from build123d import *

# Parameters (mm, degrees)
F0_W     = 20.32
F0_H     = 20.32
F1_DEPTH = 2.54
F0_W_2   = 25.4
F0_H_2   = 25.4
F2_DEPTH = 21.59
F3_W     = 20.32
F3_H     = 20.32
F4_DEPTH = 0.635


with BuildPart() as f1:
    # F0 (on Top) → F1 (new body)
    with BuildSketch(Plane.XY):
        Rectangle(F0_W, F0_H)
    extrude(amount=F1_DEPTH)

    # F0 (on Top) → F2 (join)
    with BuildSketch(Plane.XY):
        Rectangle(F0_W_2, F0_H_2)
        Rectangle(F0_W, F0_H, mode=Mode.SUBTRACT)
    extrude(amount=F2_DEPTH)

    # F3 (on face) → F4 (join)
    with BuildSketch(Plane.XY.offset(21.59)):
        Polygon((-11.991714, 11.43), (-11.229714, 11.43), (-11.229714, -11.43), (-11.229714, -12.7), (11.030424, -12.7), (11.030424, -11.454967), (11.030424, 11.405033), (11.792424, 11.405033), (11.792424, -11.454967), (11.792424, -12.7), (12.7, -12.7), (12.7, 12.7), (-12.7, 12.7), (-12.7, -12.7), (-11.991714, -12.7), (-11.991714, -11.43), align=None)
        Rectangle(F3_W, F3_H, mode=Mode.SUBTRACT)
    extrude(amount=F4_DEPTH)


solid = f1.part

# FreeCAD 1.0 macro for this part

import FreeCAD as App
import Part
import Sketcher
from FreeCAD import Vector
Q = App.Units.Quantity

doc = App.newDocument("Part")
body = doc.addObject("PartDesign::Body", "Body")

sketch1 = body.newObject("Sketcher::SketchObject", "Sketch")
sketch1.AttachmentSupport = (doc.getObject("XY_Plane"), [""])
sketch1.MapMode = "FlatFace"
sketch1.addGeometry(Part.LineSegment(Vector(-10, 10, 0), Vector(-10, -10, 0)), False)
sketch1.addGeometry(Part.LineSegment(Vector(-10, -10, 0), Vector(10, -10, 0)), False)
sketch1.addGeometry(Part.LineSegment(Vector(10, -10, 0), Vector(10, 10, 0)), False)
sketch1.addGeometry(Part.LineSegment(Vector(10, 10, 0), Vector(-10, 10, 0)), False)
sketch1.addConstraint(Sketcher.Constraint("Coincident", 0, 2, 1, 1))
sketch1.addConstraint(Sketcher.Constraint("Coincident", 1, 2, 2, 1))
sketch1.addConstraint(Sketcher.Constraint("Coincident", 2, 2, 3, 1))
sketch1.addConstraint(Sketcher.Constraint("Coincident", 3, 2, 0, 1))
sketch1.addConstraint(Sketcher.Constraint("Vertical", 0))
sketch1.addConstraint(Sketcher.Constraint("Horizontal", 1))
sketch1.addConstraint(Sketcher.Constraint("Vertical", 2))
sketch1.addConstraint(Sketcher.Constraint("Horizontal", 3))
sketch1.addConstraint(Sketcher.Constraint("Symmetric", 0, 2, 2, 2, -1, 1))
sketch1.addConstraint(Sketcher.Constraint("Equal", 3, 0))
sketch1.addConstraint(Sketcher.Constraint("DistanceX", 1, 1, 1, 2, Q("0.8 in")))
pad1 = body.newObject("PartDesign::Pad", "Pad")
pad1.Profile = sketch1
pad1.Length = Q("0.1 in")

sketch2 = body.newObject("Sketcher::SketchObject", "Sketch001")
sketch2.AttachmentSupport = (doc.getObject("XY_Plane"), [""])
sketch2.MapMode = "FlatFace"
sketch2.addGeometry(Part.LineSegment(Vector(-13, 13, 0), Vector(-13, -13, 0)), False)
sketch2.addGeometry(Part.LineSegment(Vector(-13, -13, 0), Vector(13, -13, 0)), False)
sketch2.addGeometry(Part.LineSegment(Vector(13, -13, 0), Vector(13, 13, 0)), False)
sketch2.addGeometry(Part.LineSegment(Vector(13, 13, 0), Vector(-13, 13, 0)), False)
sketch2.addGeometry(Part.LineSegment(Vector(10, -10, 0), Vector(-10, -10, 0)), False)
sketch2.addGeometry(Part.LineSegment(Vector(-10, -10, 0), Vector(-10, 10, 0)), False)
sketch2.addGeometry(Part.LineSegment(Vector(-10, 10, 0), Vector(10, 10, 0)), False)
sketch2.addGeometry(Part.LineSegment(Vector(10, 10, 0), Vector(10, -10, 0)), False)
sketch2.addConstraint(Sketcher.Constraint("Coincident", 0, 2, 1, 1))
sketch2.addConstraint(Sketcher.Constraint("Coincident", 1, 2, 2, 1))
sketch2.addConstraint(Sketcher.Constraint("Coincident", 2, 2, 3, 1))
sketch2.addConstraint(Sketcher.Constraint("Coincident", 3, 2, 0, 1))
sketch2.addConstraint(Sketcher.Constraint("Coincident", 4, 2, 5, 1))
sketch2.addConstraint(Sketcher.Constraint("Coincident", 5, 2, 6, 1))
sketch2.addConstraint(Sketcher.Constraint("Coincident", 6, 2, 7, 1))
sketch2.addConstraint(Sketcher.Constraint("Coincident", 7, 2, 4, 1))
sketch2.addConstraint(Sketcher.Constraint("Vertical", 0))
sketch2.addConstraint(Sketcher.Constraint("Horizontal", 1))
sketch2.addConstraint(Sketcher.Constraint("Vertical", 2))
sketch2.addConstraint(Sketcher.Constraint("Horizontal", 3))
sketch2.addConstraint(Sketcher.Constraint("Horizontal", 4))
sketch2.addConstraint(Sketcher.Constraint("Vertical", 5))
sketch2.addConstraint(Sketcher.Constraint("Horizontal", 6))
sketch2.addConstraint(Sketcher.Constraint("Vertical", 7))
sketch2.addConstraint(Sketcher.Constraint("Symmetric", 0, 2, 2, 2, -1, 1))
sketch2.addConstraint(Sketcher.Constraint("Symmetric", 4, 2, 6, 2, -1, 1))
sketch2.addConstraint(Sketcher.Constraint("Equal", 3, 0))
sketch2.addConstraint(Sketcher.Constraint("Equal", 6, 5))
sketch2.addConstraint(Sketcher.Constraint("DistanceX", 1, 1, 1, 2, Q("1 in")))
sketch2.addConstraint(Sketcher.Constraint("DistanceX", 4, 2, 4, 1, Q("0.8 in")))
pad2 = body.newObject("PartDesign::Pad", "Pad001")
pad2.Profile = sketch2
pad2.Length = Q("0.85 in")

sketch3 = body.newObject("Sketcher::SketchObject", "Sketch002")
sketch3.AttachmentSupport = (doc.getObject("XY_Plane"), [""])
sketch3.MapMode = "FlatFace"
sketch3.AttachmentOffset = App.Placement(Vector(0, 0, 0.85 * 25.4), App.Rotation())
sketch3.addGeometry(Part.LineSegment(Vector(-12, 11.4, 0), Vector(-11.2, 11.4, 0)), False)
sketch3.addGeometry(Part.LineSegment(Vector(-11.2, 11.4, 0), Vector(-11.2, -12.7, 0)), False)
sketch3.addGeometry(Part.LineSegment(Vector(-11.2, -12.7, 0), Vector(11, -12.7, 0)), False)
sketch3.addGeometry(Part.LineSegment(Vector(11, -12.7, 0), Vector(11, 11.4, 0)), False)
sketch3.addGeometry(Part.LineSegment(Vector(11, 11.4, 0), Vector(11.8, 11.4, 0)), False)
sketch3.addGeometry(Part.LineSegment(Vector(11.8, 11.4, 0), Vector(11.8, -12.7, 0)), False)
sketch3.addGeometry(Part.LineSegment(Vector(11.8, -12.7, 0), Vector(12.7, -12.7, 0)), False)
sketch3.addGeometry(Part.LineSegment(Vector(12.7, -12.7, 0), Vector(12.7, 12.7, 0)), False)
sketch3.addGeometry(Part.LineSegment(Vector(12.7, 12.7, 0), Vector(-12.7, 12.7, 0)), False)
sketch3.addGeometry(Part.LineSegment(Vector(-12.7, 12.7, 0), Vector(-12.7, -12.7, 0)), False)
sketch3.addGeometry(Part.LineSegment(Vector(-12.7, -12.7, 0), Vector(-12, -12.7, 0)), False)
sketch3.addGeometry(Part.LineSegment(Vector(-12, -12.7, 0), Vector(-12, 11.4, 0)), False)
sketch3.addGeometry(Part.LineSegment(Vector(10.2, -10.2, 0), Vector(-10.2, -10.2, 0)), False)
sketch3.addGeometry(Part.LineSegment(Vector(-10.2, -10.2, 0), Vector(-10.2, 10.2, 0)), False)
sketch3.addGeometry(Part.LineSegment(Vector(-10.2, 10.2, 0), Vector(10.2, 10.2, 0)), False)
sketch3.addGeometry(Part.LineSegment(Vector(10.2, 10.2, 0), Vector(10.2, -10.2, 0)), False)
sketch3.addConstraint(Sketcher.Constraint("Coincident", 0, 2, 1, 1))
sketch3.addConstraint(Sketcher.Constraint("Coincident", 1, 2, 2, 1))
sketch3.addConstraint(Sketcher.Constraint("Coincident", 2, 2, 3, 1))
sketch3.addConstraint(Sketcher.Constraint("Coincident", 3, 2, 4, 1))
sketch3.addConstraint(Sketcher.Constraint("Coincident", 4, 2, 5, 1))
sketch3.addConstraint(Sketcher.Constraint("Coincident", 5, 2, 6, 1))
sketch3.addConstraint(Sketcher.Constraint("Coincident", 6, 2, 7, 1))
sketch3.addConstraint(Sketcher.Constraint("Coincident", 7, 2, 8, 1))
sketch3.addConstraint(Sketcher.Constraint("Coincident", 8, 2, 9, 1))
sketch3.addConstraint(Sketcher.Constraint("Coincident", 9, 2, 10, 1))
sketch3.addConstraint(Sketcher.Constraint("Coincident", 10, 2, 11, 1))
sketch3.addConstraint(Sketcher.Constraint("Coincident", 11, 2, 0, 1))
sketch3.addConstraint(Sketcher.Constraint("Coincident", 12, 2, 13, 1))
sketch3.addConstraint(Sketcher.Constraint("Coincident", 13, 2, 14, 1))
sketch3.addConstraint(Sketcher.Constraint("Coincident", 14, 2, 15, 1))
sketch3.addConstraint(Sketcher.Constraint("Coincident", 15, 2, 12, 1))
sketch3.addConstraint(Sketcher.Constraint("Horizontal", 0))
sketch3.addConstraint(Sketcher.Constraint("Vertical", 1))
sketch3.addConstraint(Sketcher.Constraint("Horizontal", 2))
sketch3.addConstraint(Sketcher.Constraint("Vertical", 3))
sketch3.addConstraint(Sketcher.Constraint("Horizontal", 4))
sketch3.addConstraint(Sketcher.Constraint("Vertical", 5))
sketch3.addConstraint(Sketcher.Constraint("Horizontal", 6))
sketch3.addConstraint(Sketcher.Constraint("Vertical", 7))
sketch3.addConstraint(Sketcher.Constraint("Horizontal", 8))
sketch3.addConstraint(Sketcher.Constraint("Vertical", 9))
sketch3.addConstraint(Sketcher.Constraint("Horizontal", 10))
sketch3.addConstraint(Sketcher.Constraint("Vertical", 11))
sketch3.addConstraint(Sketcher.Constraint("Horizontal", 12))
sketch3.addConstraint(Sketcher.Constraint("Vertical", 13))
sketch3.addConstraint(Sketcher.Constraint("Horizontal", 14))
sketch3.addConstraint(Sketcher.Constraint("Vertical", 15))
sketch3.addConstraint(Sketcher.Constraint("Symmetric", 6, 2, 8, 2, -1, 1))
sketch3.addConstraint(Sketcher.Constraint("Symmetric", 12, 2, 14, 2, -1, 1))
sketch3.addConstraint(Sketcher.Constraint("Horizontal", 2, 2, 5, 2))
sketch3.addConstraint(Sketcher.Constraint("Horizontal", 6, 2, 9, 2))
sketch3.addConstraint(Sketcher.Constraint("Equal", 0, 4))
sketch3.addConstraint(Sketcher.Constraint("Equal", 8, 7))
sketch3.addConstraint(Sketcher.Constraint("Equal", 14, 13))
sketch3.addConstraint(Sketcher.Constraint("DistanceX", 8, 2, 8, 1, Q("1 in")))
sketch3.addConstraint(Sketcher.Constraint("DistanceX", 12, 2, 12, 1, Q("0.8 in")))
sketch3.addConstraint(Sketcher.Constraint("DistanceX", 0, 1, 0, 2, Q("0.03 in")))
sketch3.addConstraint(Sketcher.Constraint("DistanceY", 1, 2, 1, 1, Q("0.95 in")))
sketch3.addConstraint(Sketcher.Constraint("DistanceX", 2, 1, 2, 2, 22.260138))
sketch3.addConstraint(Sketcher.Constraint("DistanceX", 6, 1, 6, 2, 0.907576))
sketch3.addConstraint(Sketcher.Constraint("DistanceY", 3, 1, 3, 2, 24.105033))
pad3 = body.newObject("PartDesign::Pad", "Pad002")
pad3.Profile = sketch3
pad3.Length = Q("0.025 in")

doc.recompute()
